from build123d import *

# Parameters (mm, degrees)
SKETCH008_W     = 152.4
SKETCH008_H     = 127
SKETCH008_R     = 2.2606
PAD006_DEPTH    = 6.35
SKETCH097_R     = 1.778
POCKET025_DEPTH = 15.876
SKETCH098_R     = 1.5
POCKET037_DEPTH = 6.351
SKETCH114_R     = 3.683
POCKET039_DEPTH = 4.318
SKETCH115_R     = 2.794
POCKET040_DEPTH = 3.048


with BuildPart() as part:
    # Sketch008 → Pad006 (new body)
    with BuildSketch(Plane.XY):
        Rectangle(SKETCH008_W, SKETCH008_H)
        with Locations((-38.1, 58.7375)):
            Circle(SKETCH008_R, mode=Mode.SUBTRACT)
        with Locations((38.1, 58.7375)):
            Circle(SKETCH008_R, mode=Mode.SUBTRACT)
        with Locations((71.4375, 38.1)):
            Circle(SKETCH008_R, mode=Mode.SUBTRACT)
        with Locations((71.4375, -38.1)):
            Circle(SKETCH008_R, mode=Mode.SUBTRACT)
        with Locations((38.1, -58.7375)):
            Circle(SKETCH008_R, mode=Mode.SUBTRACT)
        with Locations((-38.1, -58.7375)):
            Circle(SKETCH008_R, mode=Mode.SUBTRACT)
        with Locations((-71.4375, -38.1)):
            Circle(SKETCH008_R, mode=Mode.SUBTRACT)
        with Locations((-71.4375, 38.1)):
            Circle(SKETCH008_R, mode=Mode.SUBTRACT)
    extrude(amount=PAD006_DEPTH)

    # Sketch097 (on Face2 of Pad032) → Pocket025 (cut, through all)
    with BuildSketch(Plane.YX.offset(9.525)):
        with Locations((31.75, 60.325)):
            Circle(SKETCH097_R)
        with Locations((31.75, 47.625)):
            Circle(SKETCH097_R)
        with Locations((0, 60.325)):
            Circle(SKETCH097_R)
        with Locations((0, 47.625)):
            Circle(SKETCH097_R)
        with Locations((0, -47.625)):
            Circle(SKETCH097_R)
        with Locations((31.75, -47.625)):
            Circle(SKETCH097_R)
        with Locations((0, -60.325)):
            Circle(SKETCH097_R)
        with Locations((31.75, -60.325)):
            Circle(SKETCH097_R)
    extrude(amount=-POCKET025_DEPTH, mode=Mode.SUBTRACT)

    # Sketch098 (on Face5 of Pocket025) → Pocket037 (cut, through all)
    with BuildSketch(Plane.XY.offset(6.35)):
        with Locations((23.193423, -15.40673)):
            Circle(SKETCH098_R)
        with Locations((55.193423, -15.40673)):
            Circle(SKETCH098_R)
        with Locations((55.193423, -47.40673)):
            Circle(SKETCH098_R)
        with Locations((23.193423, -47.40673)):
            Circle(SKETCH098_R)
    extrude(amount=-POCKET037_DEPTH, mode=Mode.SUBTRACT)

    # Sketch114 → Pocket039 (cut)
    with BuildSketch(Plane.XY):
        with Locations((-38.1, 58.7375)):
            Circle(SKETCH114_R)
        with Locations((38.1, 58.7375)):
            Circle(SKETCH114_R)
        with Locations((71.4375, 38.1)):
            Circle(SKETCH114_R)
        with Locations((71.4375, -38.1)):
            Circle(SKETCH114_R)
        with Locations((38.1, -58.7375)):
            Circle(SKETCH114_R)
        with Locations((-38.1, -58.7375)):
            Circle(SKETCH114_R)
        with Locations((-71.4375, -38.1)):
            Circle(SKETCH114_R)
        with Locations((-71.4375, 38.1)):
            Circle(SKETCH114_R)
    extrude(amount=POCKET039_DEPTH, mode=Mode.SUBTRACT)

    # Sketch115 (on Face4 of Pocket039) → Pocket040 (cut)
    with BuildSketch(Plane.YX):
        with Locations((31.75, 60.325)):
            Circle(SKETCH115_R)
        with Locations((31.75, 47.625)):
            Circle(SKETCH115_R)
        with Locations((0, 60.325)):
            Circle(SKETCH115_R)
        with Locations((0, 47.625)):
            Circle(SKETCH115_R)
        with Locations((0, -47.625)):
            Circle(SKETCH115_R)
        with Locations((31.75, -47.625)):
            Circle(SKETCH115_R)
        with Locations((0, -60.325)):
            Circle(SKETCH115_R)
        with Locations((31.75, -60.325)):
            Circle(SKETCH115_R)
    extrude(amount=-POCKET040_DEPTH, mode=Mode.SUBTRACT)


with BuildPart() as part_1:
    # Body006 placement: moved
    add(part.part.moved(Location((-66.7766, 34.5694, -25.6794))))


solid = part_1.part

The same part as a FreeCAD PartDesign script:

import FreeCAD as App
import Part
import Sketcher

V = App.Vector
Q = App.Units.Quantity


def add_polygon(sketch, points):
    """Adds a closed chain of lines whose ends are joined by coincident constraints."""
    first, n = sketch.GeometryCount, len(points)
    for a, b in zip(points, points[1:] + points[:1]):
        sketch.addGeometry(Part.LineSegment(App.Vector(*a, 0), App.Vector(*b, 0)), False)
    for i in range(n):
        sketch.addConstraint(Sketcher.Constraint("Coincident", first + i, 2, first + (i + 1) % n, 1))

doc = App.newDocument("Part")
body = doc.addObject("PartDesign::Body", "Body")

# Sketch on XY plane
sketch1 = body.newObject("Sketcher::SketchObject", "Sketch")
sketch1.AttachmentSupport = (doc.getObject("XY_Plane"), [""])
sketch1.MapMode = "FlatFace"
add_polygon(sketch1, [(-76.2, 63.5), (-76.2, -63.5), (76.2, -63.5), (76.2, 63.5)])  # lines 0-3
sketch1.addGeometry(Part.Circle(V(-38.1, -58.7, 0), V(0, 0, 1), 2.3), False)  # 4
sketch1.addGeometry(Part.Circle(V(-71.4, -38.1, 0), V(0, 0, 1), 2.3), False)  # 5
sketch1.addGeometry(Part.Circle(V(38.1, -58.7, 0), V(0, 0, 1), 2.3), False)  # 6
sketch1.addGeometry(Part.Circle(V(71.4, -38.1, 0), V(0, 0, 1), 2.3), False)  # 7
sketch1.addGeometry(Part.Circle(V(-71.4, 38.1, 0), V(0, 0, 1), 2.3), False)  # 8
sketch1.addGeometry(Part.Circle(V(-38.1, 58.7, 0), V(0, 0, 1), 2.3), False)  # 9
sketch1.addGeometry(Part.Circle(V(71.4, 38.1, 0), V(0, 0, 1), 2.3), False)  # 10
sketch1.addGeometry(Part.Circle(V(38.1, 58.7, 0), V(0, 0, 1), 2.3), False)  # 11
sketch1.addConstraint(Sketcher.Constraint("Vertical", 0))
sketch1.addConstraint(Sketcher.Constraint("Horizontal", 1))
sketch1.addConstraint(Sketcher.Constraint("Vertical", 2))
sketch1.addConstraint(Sketcher.Constraint("Horizontal", 3))
sketch1.addConstraint(Sketcher.Constraint("Equal", 4, 5))
sketch1.addConstraint(Sketcher.Constraint("Equal", 5, 6))
sketch1.addConstraint(Sketcher.Constraint("Equal", 6, 7))
sketch1.addConstraint(Sketcher.Constraint("Equal", 7, 8))
sketch1.addConstraint(Sketcher.Constraint("Equal", 8, 9))
sketch1.addConstraint(Sketcher.Constraint("Equal", 9, 10))
sketch1.addConstraint(Sketcher.Constraint("Equal", 10, 11))
sketch1.addConstraint(Sketcher.Constraint("Symmetric", 7, 3, 8, 3, -1, 1))
sketch1.addConstraint(Sketcher.Constraint("Symmetric", 6, 3, 9, 3, -1, 1))
sketch1.addConstraint(Sketcher.Constraint("Symmetric", 5, 3, 10, 3, -1, 1))
sketch1.addConstraint(Sketcher.Constraint("Symmetric", 4, 3, 11, 3, -1, 1))
sketch1.addConstraint(Sketcher.Constraint("Symmetric", 0, 2, 2, 2, -1, 1))
sketch1.addConstraint(Sketcher.Constraint("Symmetric", 4, 3, 6, 3, -2))
sketch1.addConstraint(Sketcher.Constraint("Symmetric", 5, 3, 7, 3, -2))
sketch1.addConstraint(Sketcher.Constraint("DistanceX", 1, 1, 1, 2, Q("6 in")))
sketch1.addConstraint(Sketcher.Constraint("DistanceY", 0, 2, 0, 1, Q("5 in")))
sketch1.addConstraint(Sketcher.Constraint("Diameter", 4, Q("0.178 in")))
sketch1.addConstraint(Sketcher.Constraint("DistanceX", 4, 3, 6, 3, Q("3 in")))
sketch1.addConstraint(Sketcher.Constraint("DistanceY", 5, 3, 8, 3, Q("3 in")))
sketch1.addConstraint(Sketcher.Constraint("DistanceY", 4, 3, -1, 1, Q("2.3125 in")))
sketch1.addConstraint(Sketcher.Constraint("DistanceX", 5, 3, -1, 1, Q("2.8125 in")))
pad1 = body.newObject("PartDesign::Pad", "Pad")
pad1.Profile = sketch1
pad1.Length = Q("0.25 in")

# Sketch on XY plane
sketch2 = body.newObject("Sketcher::SketchObject", "Sketch001")
sketch2.AttachmentSupport = (doc.getObject("XY_Plane"), [""])
sketch2.MapMode = "FlatFace"
sketch2.AttachmentOffset = App.Placement(V(0, 0, -0.375 * 25.4), App.Rotation())
sketch2.addGeometry(Part.Circle(V(60.3, 31.8, 0), V(0, 0, 1), 1.8), False)
sketch2.addGeometry(Part.Circle(V(47.6, 31.8, 0), V(0, 0, 1), 1.8), False)
sketch2.addGeometry(Part.Circle(V(60.3, 0, 0), V(0, 0, 1), 1.8), False)
sketch2.addGeometry(Part.Circle(V(47.6, 0, 0), V(0, 0, 1), 1.8), False)
sketch2.addGeometry(Part.Circle(V(-47.6, 0, 0), V(0, 0, 1), 1.8), False)
sketch2.addGeometry(Part.Circle(V(-47.6, 31.8, 0), V(0, 0, 1), 1.8), False)
sketch2.addGeometry(Part.Circle(V(-60.3, 0, 0), V(0, 0, 1), 1.8), False)
sketch2.addGeometry(Part.Circle(V(-60.3, 31.8, 0), V(0, 0, 1), 1.8), False)
sketch2.addConstraint(Sketcher.Constraint("Equal", 0, 1))
sketch2.addConstraint(Sketcher.Constraint("Equal", 1, 2))
sketch2.addConstraint(Sketcher.Constraint("Equal", 2, 3))
sketch2.addConstraint(Sketcher.Constraint("Equal", 3, 4))
sketch2.addConstraint(Sketcher.Constraint("Equal", 4, 5))
sketch2.addConstraint(Sketcher.Constraint("Equal", 5, 6))
sketch2.addConstraint(Sketcher.Constraint("Equal", 6, 7))
sketch2.addConstraint(Sketcher.Constraint("Symmetric", 3, 3, 4, 3, -1, 1))
sketch2.addConstraint(Sketcher.Constraint("Symmetric", 2, 3, 6, 3, -1, 1))
sketch2.addConstraint(Sketcher.Constraint("Symmetric", 1, 3, 5, 3, -2))
sketch2.addConstraint(Sketcher.Constraint("Symmetric", 0, 3, 7, 3, -2))
sketch2.addConstraint(Sketcher.Constraint("PointOnObject", 2, 3, -1))
sketch2.addConstraint(Sketcher.Constraint("PointOnObject", 3, 3, -1))
sketch2.addConstraint(Sketcher.Constraint("Horizontal", 0, 3, 1, 3))
sketch2.addConstraint(Sketcher.Constraint("Vertical", 0, 3, 2, 3))
sketch2.addConstraint(Sketcher.Constraint("Vertical", 1, 3, 3, 3))
sketch2.addConstraint(Sketcher.Constraint("Diameter", 0, Q("0.14 in")))
sketch2.addConstraint(Sketcher.Constraint("DistanceX", 1, 3, 0, 3, Q("0.5 in")))
sketch2.addConstraint(Sketcher.Constraint("DistanceY", -1, 1, 0, 3, Q("1.25 in")))
sketch2.addConstraint(Sketcher.Constraint("DistanceX", 4, 3, 3, 3, Q("3.75 in")))
pocket1 = body.newObject("PartDesign::Pocket", "Pocket")
pocket1.Profile = sketch2
pocket1.Type = "ThroughAll"
pocket1.Reversed = True

# Sketch on XY plane
sketch3 = body.newObject("Sketcher::SketchObject", "Sketch002")
sketch3.AttachmentSupport = (doc.getObject("XY_Plane"), [""])
sketch3.MapMode = "FlatFace"
sketch3.AttachmentOffset = App.Placement(V(0, 0, 0.25 * 25.4), App.Rotation())
sketch3.addGeometry(Part.Circle(V(23.2, -15.4, 0), V(0, 0, 1), 1.5), False)
sketch3.addGeometry(Part.Circle(V(55.2, -15.4, 0), V(0, 0, 1), 1.5), False)
sketch3.addGeometry(Part.Circle(V(55.2, -47.4, 0), V(0, 0, 1), 1.5), False)
sketch3.addGeometry(Part.Circle(V(23.2, -47.4, 0), V(0, 0, 1), 1.5), False)
sketch3.addConstraint(Sketcher.Constraint("Equal", 0, 1))
sketch3.addConstraint(Sketcher.Constraint("Equal", 1, 2))
sketch3.addConstraint(Sketcher.Constraint("Equal", 2, 3))
sketch3.addConstraint(Sketcher.Constraint("Horizontal", 0, 3, 1, 3))
sketch3.addConstraint(Sketcher.Constraint("Horizontal", 2, 3, 3, 3))
sketch3.addConstraint(Sketcher.Constraint("Vertical", 1, 3, 2, 3))
sketch3.addConstraint(Sketcher.Constraint("Vertical", 0, 3, 3, 3))
sketch3.addConstraint(Sketcher.Constraint("Diameter", 0, 3.0))
sketch3.addConstraint(Sketcher.Constraint("DistanceX", 0, 3, 1, 3, 32.0))
sketch3.addConstraint(Sketcher.Constraint("DistanceY", 2, 3, 1, 3, 32.0))
sketch3.addConstraint(Sketcher.Constraint("DistanceY", 0, 3, -1, 1, 15.40673))
sketch3.addConstraint(Sketcher.Constraint("DistanceX", -1, 1, 0, 3, 23.193423))
pocket2 = body.newObject("PartDesign::Pocket", "Pocket001")
pocket2.Profile = sketch3
pocket2.Type = "ThroughAll"

# Sketch on XY plane
sketch4 = body.newObject("Sketcher::SketchObject", "Sketch003")
sketch4.AttachmentSupport = (doc.getObject("XY_Plane"), [""])
sketch4.MapMode = "FlatFace"
sketch4.addGeometry(Part.Circle(V(-38.1, 58.7, 0), V(0, 0, 1), 3.7), False)
sketch4.addGeometry(Part.Circle(V(38.1, 58.7, 0), V(0, 0, 1), 3.7), False)
sketch4.addGeometry(Part.Circle(V(71.4, 38.1, 0), V(0, 0, 1), 3.7), False)
sketch4.addGeometry(Part.Circle(V(71.4, -38.1, 0), V(0, 0, 1), 3.7), False)
sketch4.addGeometry(Part.Circle(V(38.1, -58.7, 0), V(0, 0, 1), 3.7), False)
sketch4.addGeometry(Part.Circle(V(-38.1, -58.7, 0), V(0, 0, 1), 3.7), False)
sketch4.addGeometry(Part.Circle(V(-71.4, -38.1, 0), V(0, 0, 1), 3.7), False)
sketch4.addGeometry(Part.Circle(V(-71.4, 38.1, 0), V(0, 0, 1), 3.7), False)
sketch4.addConstraint(Sketcher.Constraint("Equal", 0, 1))
sketch4.addConstraint(Sketcher.Constraint("Equal", 1, 2))
sketch4.addConstraint(Sketcher.Constraint("Equal", 2, 3))
sketch4.addConstraint(Sketcher.Constraint("Equal", 3, 4))
sketch4.addConstraint(Sketcher.Constraint("Equal", 4, 5))
sketch4.addConstraint(Sketcher.Constraint("Equal", 5, 6))
sketch4.addConstraint(Sketcher.Constraint("Equal", 6, 7))
sketch4.addConstraint(Sketcher.Constraint("Symmetric", 0, 3, 4, 3, -1, 1))
sketch4.addConstraint(Sketcher.Constraint("Symmetric", 1, 3, 5, 3, -1, 1))
sketch4.addConstraint(Sketcher.Constraint("Symmetric", 2, 3, 6, 3, -1, 1))
sketch4.addConstraint(Sketcher.Constraint("Symmetric", 3, 3, 7, 3, -1, 1))
sketch4.addConstraint(Sketcher.Constraint("Symmetric", 0, 3, 1, 3, -2))
sketch4.addConstraint(Sketcher.Constraint("Symmetric", 3, 3, 6, 3, -2))
sketch4.addConstraint(Sketcher.Constraint("Diameter", 0, Q("0.29 in")))
sketch4.addConstraint(Sketcher.Constraint("DistanceX", 0, 3, 1, 3, Q("3 in")))
sketch4.addConstraint(Sketcher.Constraint("DistanceY", 3, 3, 2, 3, Q("3 in")))
sketch4.addConstraint(Sketcher.Constraint("DistanceY", -1, 1, 0, 3, Q("2.3125 in")))
sketch4.addConstraint(Sketcher.Constraint("DistanceX", -1, 1, 2, 3, Q("2.8125 in")))
pocket3 = body.newObject("PartDesign::Pocket", "Pocket002")
pocket3.Profile = sketch4
pocket3.Length = Q("0.17 in")
pocket3.Reversed = True

# Sketch on XY plane
sketch5 = body.newObject("Sketcher::SketchObject", "Sketch004")
sketch5.AttachmentSupport = (doc.getObject("XY_Plane"), [""])
sketch5.MapMode = "FlatFace"
sketch5.addGeometry(Part.Circle(V(60.3, 31.8, 0), V(0, 0, 1), 2.8), False)
sketch5.addGeometry(Part.Circle(V(47.6, 31.8, 0), V(0, 0, 1), 2.8), False)
sketch5.addGeometry(Part.Circle(V(60.3, 0, 0), V(0, 0, 1), 2.8), False)
sketch5.addGeometry(Part.Circle(V(47.6, 0, 0), V(0, 0, 1), 2.8), False)
sketch5.addGeometry(Part.Circle(V(-47.6, 0, 0), V(0, 0, 1), 2.8), False)
sketch5.addGeometry(Part.Circle(V(-47.6, 31.8, 0), V(0, 0, 1), 2.8), False)
sketch5.addGeometry(Part.Circle(V(-60.3, 0, 0), V(0, 0, 1), 2.8), False)
sketch5.addGeometry(Part.Circle(V(-60.3, 31.8, 0), V(0, 0, 1), 2.8), False)
sketch5.addConstraint(Sketcher.Constraint("Equal", 0, 1))
sketch5.addConstraint(Sketcher.Constraint("Equal", 1, 2))
sketch5.addConstraint(Sketcher.Constraint("Equal", 2, 3))
sketch5.addConstraint(Sketcher.Constraint("Equal", 3, 4))
sketch5.addConstraint(Sketcher.Constraint("Equal", 4, 5))
sketch5.addConstraint(Sketcher.Constraint("Equal", 5, 6))
sketch5.addConstraint(Sketcher.Constraint("Equal", 6, 7))
sketch5.addConstraint(Sketcher.Constraint("Symmetric", 3, 3, 4, 3, -1, 1))
sketch5.addConstraint(Sketcher.Constraint("Symmetric", 2, 3, 6, 3, -1, 1))
sketch5.addConstraint(Sketcher.Constraint("Symmetric", 1, 3, 5, 3, -2))
sketch5.addConstraint(Sketcher.Constraint("Symmetric", 0, 3, 7, 3, -2))
sketch5.addConstraint(Sketcher.Constraint("PointOnObject", 2, 3, -1))
sketch5.addConstraint(Sketcher.Constraint("PointOnObject", 3, 3, -1))
sketch5.addConstraint(Sketcher.Constraint("Horizontal", 0, 3, 1, 3))
sketch5.addConstraint(Sketcher.Constraint("Vertical", 0, 3, 2, 3))
sketch5.addConstraint(Sketcher.Constraint("Vertical", 1, 3, 3, 3))
sketch5.addConstraint(Sketcher.Constraint("Diameter", 0, Q("0.22 in")))
sketch5.addConstraint(Sketcher.Constraint("DistanceX", 1, 3, 0, 3, Q("0.5 in")))
sketch5.addConstraint(Sketcher.Constraint("DistanceY", -1, 1, 0, 3, Q("1.25 in")))
sketch5.addConstraint(Sketcher.Constraint("DistanceX", 4, 3, 3, 3, Q("3.75 in")))
pocket4 = body.newObject("PartDesign::Pocket", "Pocket003")
pocket4.Profile = sketch5
pocket4.Length = Q("0.12 in")
pocket4.Reversed = True
body2 = doc.addObject("PartDesign::Body", "Body001")
doc.recompute()

body.Placement = App.Placement(V(-66.7766, 34.5694, -25.6794), App.Rotation(V(0, 0, 1), 0))
boolean = body2.newObject("PartDesign::Boolean", "Boolean")
boolean.Type = "Fuse"
boolean.addObjects([body])

doc.recompute()
